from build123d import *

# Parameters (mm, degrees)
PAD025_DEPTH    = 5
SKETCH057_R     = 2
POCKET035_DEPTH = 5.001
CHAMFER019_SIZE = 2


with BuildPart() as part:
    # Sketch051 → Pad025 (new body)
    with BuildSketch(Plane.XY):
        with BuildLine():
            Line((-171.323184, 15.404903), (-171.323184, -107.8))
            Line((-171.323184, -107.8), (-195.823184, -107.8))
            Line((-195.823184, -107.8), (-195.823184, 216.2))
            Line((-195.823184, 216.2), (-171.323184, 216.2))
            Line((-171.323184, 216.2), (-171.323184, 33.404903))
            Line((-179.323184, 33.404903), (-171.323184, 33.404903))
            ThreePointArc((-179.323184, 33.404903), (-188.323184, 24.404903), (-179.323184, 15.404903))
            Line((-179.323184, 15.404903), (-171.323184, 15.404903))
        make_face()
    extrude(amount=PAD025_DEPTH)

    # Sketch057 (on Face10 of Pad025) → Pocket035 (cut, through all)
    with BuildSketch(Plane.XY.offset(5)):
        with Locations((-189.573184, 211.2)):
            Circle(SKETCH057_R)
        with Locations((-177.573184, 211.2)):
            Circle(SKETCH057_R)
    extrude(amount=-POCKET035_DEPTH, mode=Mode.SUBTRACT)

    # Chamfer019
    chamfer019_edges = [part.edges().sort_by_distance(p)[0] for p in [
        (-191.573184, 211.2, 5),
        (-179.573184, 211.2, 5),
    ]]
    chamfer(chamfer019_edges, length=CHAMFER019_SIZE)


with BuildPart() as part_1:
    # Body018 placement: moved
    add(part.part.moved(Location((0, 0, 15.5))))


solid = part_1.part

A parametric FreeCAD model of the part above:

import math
import FreeCAD as App
import Part
import Sketcher
from FreeCAD import Vector


def edges_at(feature, points):
    """Names of the edges that pass closest to the given points."""
    edges = feature.Shape.Edges
    near = lambda p: min(range(len(edges)), key=lambda i: edges[i].distToShape(Part.Vertex(*p))[0])
    return sorted({f"Edge{near(p) + 1}" for p in points})

doc = App.newDocument("Part")
body = doc.addObject("PartDesign::Body", "Body")

# Sketch on XY plane
sketch1 = body.newObject("Sketcher::SketchObject", "Sketch")
sketch1.AttachmentSupport = (doc.getObject("XY_Plane"), [""])
sketch1.MapMode = "FlatFace"
sketch1.addGeometry([
    Part.LineSegment(Vector(-171, -108, 0), Vector(-171, 15, 0)),  # 0
    Part.LineSegment(Vector(-171, 15, 0), Vector(-179, 15, 0)),  # 1
    Part.ArcOfCircle(Part.Circle(Vector(-179, 24, 0), Vector(0, 0, 1), 9), math.radians(90), math.radians(270)),  # 2
    Part.LineSegment(Vector(-179, 33, 0), Vector(-171, 33, 0)),  # 3
    Part.LineSegment(Vector(-171, 33, 0), Vector(-171, 216, 0)),  # 4
    Part.LineSegment(Vector(-171, 216, 0), Vector(-196, 216, 0)),  # 5
    Part.LineSegment(Vector(-196, 216, 0), Vector(-196, -108, 0)),  # 6
    Part.LineSegment(Vector(-196, -108, 0), Vector(-171, -108, 0)),  # 7
], False)
sketch1.addConstraint([
    Sketcher.Constraint("Coincident", 0, 2, 1, 1),
    Sketcher.Constraint("Tangent", 1, 2, 2, 2),
    Sketcher.Constraint("Tangent", 2, 1, 3, 1),
    Sketcher.Constraint("Coincident", 3, 2, 4, 1),
    Sketcher.Constraint("Coincident", 4, 2, 5, 1),
    Sketcher.Constraint("Coincident", 5, 2, 6, 1),
    Sketcher.Constraint("Coincident", 6, 2, 7, 1),
    Sketcher.Constraint("Coincident", 7, 2, 0, 1),
    Sketcher.Constraint("Vertical", 0),
    Sketcher.Constraint("Horizontal", 1),
    Sketcher.Constraint("Horizontal", 3),
    Sketcher.Constraint("Vertical", 4),
    Sketcher.Constraint("Horizontal", 5),
    Sketcher.Constraint("Vertical", 6),
    Sketcher.Constraint("Horizontal", 7),
    Sketcher.Constraint("Vertical", 0, 2, 3, 2),
    Sketcher.Constraint("Radius", 2, 9.0),
    Sketcher.Constraint("DistanceX", 1, 2, 1, 1, 8.0),
    Sketcher.Constraint("DistanceY", 6, 2, 6, 1, 324.0),
    Sketcher.Constraint("DistanceX", 5, 2, 5, 1, 24.5),
    Sketcher.Constraint("DistanceY", -1, 1, 4, 2, 216.2),
    Sketcher.Constraint("DistanceY", 0, 1, 0, 2, 123.204903),
    Sketcher.Constraint("DistanceX", 2, 3, -1, 1, 179.323184),
])
pad1 = body.newObject("PartDesign::Pad", "Pad")
pad1.Profile = sketch1
pad1.Length = 5

# Sketch on XY plane
sketch2 = body.newObject("Sketcher::SketchObject", "Sketch001")
sketch2.AttachmentSupport = (doc.getObject("XY_Plane"), [""])
sketch2.MapMode = "FlatFace"
sketch2.AttachmentOffset = App.Placement(Vector(0, 0, 5), App.Rotation())
sketch2.addGeometry([
    Part.Circle(Vector(-189.6, 211.2, 0), Vector(0, 0, 1), 2),
    Part.Circle(Vector(-177.6, 211.2, 0), Vector(0, 0, 1), 2),
], False)
sketch2.addConstraint([
    Sketcher.Constraint("Equal", 0, 1),
    Sketcher.Constraint("Horizontal", 0, 3, 1, 3),
    Sketcher.Constraint("Diameter", 0, 4.0),
    Sketcher.Constraint("DistanceX", 0, 3, 1, 3, 12.0),
    Sketcher.Constraint("DistanceY", -1, 1, 0, 3, 211.2),
    Sketcher.Constraint("DistanceX", 0, 3, -1, 1, 189.573184),
])
pocket1 = body.newObject("PartDesign::Pocket", "Pocket")
pocket1.Profile = sketch2
pocket1.Type = "ThroughAll"
doc.recompute()

chamfer = body.newObject("PartDesign::Chamfer", "Chamfer")
chamfer.Base = (pocket1, edges_at(pocket1, [(-191.573, 211.2, 5), (-179.573, 211.2, 5)]))
chamfer.Size = 2
body2 = doc.addObject("PartDesign::Body", "Body001")
doc.recompute()

body.Placement = App.Placement(Vector(0, 0, 15.5), App.Rotation(Vector(0, 0, 1), 0))
boolean = body2.newObject("PartDesign::Boolean", "Boolean")
boolean.Type = "Fuse"
boolean.addObjects([body])

doc.recompute()
